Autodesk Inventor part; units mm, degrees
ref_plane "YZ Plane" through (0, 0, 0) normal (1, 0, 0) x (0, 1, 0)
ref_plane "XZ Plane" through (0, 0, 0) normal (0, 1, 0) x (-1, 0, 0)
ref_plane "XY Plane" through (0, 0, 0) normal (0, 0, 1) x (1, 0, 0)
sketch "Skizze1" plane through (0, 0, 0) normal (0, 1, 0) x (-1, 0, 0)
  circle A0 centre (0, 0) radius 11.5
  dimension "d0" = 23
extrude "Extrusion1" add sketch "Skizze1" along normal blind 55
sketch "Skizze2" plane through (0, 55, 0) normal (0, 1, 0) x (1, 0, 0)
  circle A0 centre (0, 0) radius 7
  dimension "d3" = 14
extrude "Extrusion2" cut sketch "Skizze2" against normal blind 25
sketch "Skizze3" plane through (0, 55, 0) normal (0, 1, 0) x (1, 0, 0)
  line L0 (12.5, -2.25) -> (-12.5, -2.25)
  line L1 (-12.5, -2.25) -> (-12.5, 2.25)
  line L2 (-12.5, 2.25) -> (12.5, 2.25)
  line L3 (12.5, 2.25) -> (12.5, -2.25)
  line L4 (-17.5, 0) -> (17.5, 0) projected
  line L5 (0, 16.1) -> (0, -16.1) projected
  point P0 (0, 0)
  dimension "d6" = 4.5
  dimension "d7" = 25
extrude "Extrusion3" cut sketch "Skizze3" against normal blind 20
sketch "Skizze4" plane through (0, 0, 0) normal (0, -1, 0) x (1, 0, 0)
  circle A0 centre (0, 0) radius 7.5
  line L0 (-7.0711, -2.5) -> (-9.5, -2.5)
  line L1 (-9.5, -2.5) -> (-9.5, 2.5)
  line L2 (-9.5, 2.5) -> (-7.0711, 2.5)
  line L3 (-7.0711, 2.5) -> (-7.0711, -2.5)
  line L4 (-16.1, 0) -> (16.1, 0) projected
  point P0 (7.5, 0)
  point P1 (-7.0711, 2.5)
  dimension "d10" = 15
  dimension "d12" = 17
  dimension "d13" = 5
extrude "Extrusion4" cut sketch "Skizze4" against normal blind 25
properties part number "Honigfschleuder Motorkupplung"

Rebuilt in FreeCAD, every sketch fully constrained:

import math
import FreeCAD as App
import Part
import Sketcher
from FreeCAD import Vector

doc = App.newDocument("Part")
params = doc.addObject("Spreadsheet::Sheet", "Params")
for row, (alias, value) in enumerate([
    ("sketch1_diameter", "23 mm"),
    ("pad1_length", "55 mm"),
    ("sketch2_diameter", "14 mm"),
    ("pocket1_length", "25 mm"),
    ("sketch3_width", "25 mm"),
    ("sketch3_height", "4.5 mm"),
    ("pocket2_length", "20 mm"),
    ("sketch4_radius", "7.5 mm"),
    ("sketch4_height", "5 mm"),
    ("pocket3_length", "25 mm"),
], start=1):
    params.set(f"A{row}", alias)
    params.set(f"B{row}", "=" + value)
    params.setAlias(f"B{row}", alias)

body = doc.addObject("PartDesign::Body", "Body")

# Sketch on XZ plane
sketch1 = body.newObject("Sketcher::SketchObject", "Sketch")
sketch1.AttachmentSupport = (doc.getObject("XZ_Plane"), [""])
sketch1.MapMode = "FlatFace"
sketch1.addGeometry(Part.Circle(Vector(0, 0, 0), Vector(0, 0, 1), 12), False)
sketch1.addConstraint([
    Sketcher.Constraint("Coincident", 0, 3, -1, 1),
    Sketcher.Constraint("Diameter", 0, 23.0),
])
sketch1.setExpression("Constraints[1]", "Params.sketch1_diameter")
pad1 = body.newObject("PartDesign::Pad", "Pad")
pad1.Profile = sketch1
pad1.setExpression("Length", "Params.pad1_length")
pad1.Reversed = True

# Sketch on XZ plane
sketch2 = body.newObject("Sketcher::SketchObject", "Sketch001")
sketch2.AttachmentSupport = (doc.getObject("XZ_Plane"), [""])
sketch2.MapMode = "FlatFace"
sketch2.AttachmentOffset = App.Placement(Vector(0, 0, -55), App.Rotation())
sketch2.addGeometry(Part.Circle(Vector(0, 0, 0), Vector(0, 0, 1), 7), False)
sketch2.addConstraint([
    Sketcher.Constraint("Coincident", 0, 3, -1, 1),
    Sketcher.Constraint("Diameter", 0, 14.0),
])
sketch2.setExpression("Constraints[1]", "Params.sketch2_diameter")
pocket1 = body.newObject("PartDesign::Pocket", "Pocket")
pocket1.Profile = sketch2
pocket1.setExpression("Length", "Params.pocket1_length")
pocket1.Reversed = True

# Sketch on XZ plane
sketch3 = body.newObject("Sketcher::SketchObject", "Sketch002")
sketch3.AttachmentSupport = (doc.getObject("XZ_Plane"), [""])
sketch3.MapMode = "FlatFace"
sketch3.AttachmentOffset = App.Placement(Vector(0, 0, -55), App.Rotation())
sketch3.addGeometry([
    Part.LineSegment(Vector(12.5, 2.2, 0), Vector(12.5, -2.2, 0)),
    Part.LineSegment(Vector(12.5, -2.2, 0), Vector(-12.5, -2.2, 0)),
    Part.LineSegment(Vector(-12.5, -2.2, 0), Vector(-12.5, 2.2, 0)),
    Part.LineSegment(Vector(-12.5, 2.2, 0), Vector(12.5, 2.2, 0)),
], False)
sketch3.addConstraint([
    Sketcher.Constraint("Coincident", 0, 2, 1, 1),
    Sketcher.Constraint("Coincident", 1, 2, 2, 1),
    Sketcher.Constraint("Coincident", 2, 2, 3, 1),
    Sketcher.Constraint("Coincident", 3, 2, 0, 1),
    Sketcher.Constraint("Vertical", 0),
    Sketcher.Constraint("Horizontal", 1),
    Sketcher.Constraint("Vertical", 2),
    Sketcher.Constraint("Horizontal", 3),
    Sketcher.Constraint("Symmetric", 0, 2, 2, 2, -1, 1),
    Sketcher.Constraint("DistanceX", 1, 2, 1, 1, 25.0),
    Sketcher.Constraint("DistanceY", 0, 2, 0, 1, 4.5),
])
sketch3.setExpression("Constraints[9]", "Params.sketch3_width")
sketch3.setExpression("Constraints[10]", "Params.sketch3_height")
pocket2 = body.newObject("PartDesign::Pocket", "Pocket001")
pocket2.Profile = sketch3
pocket2.setExpression("Length", "Params.pocket2_length")
pocket2.Reversed = True

# Sketch on XZ plane
sketch4 = body.newObject("Sketcher::SketchObject", "Sketch003")
sketch4.AttachmentSupport = (doc.getObject("XZ_Plane"), [""])
sketch4.MapMode = "FlatFace"
sketch4.addGeometry([
    Part.LineSegment(Vector(-7.1, 2.5, 0), Vector(-9.5, 2.5, 0)),
    Part.LineSegment(Vector(-9.5, 2.5, 0), Vector(-9.5, -2.5, 0)),
    Part.LineSegment(Vector(-9.5, -2.5, 0), Vector(-7.1, -2.5, 0)),
    Part.ArcOfCircle(Part.Circle(Vector(0, 0, 0), Vector(0, 0, 1), 7.5), math.radians(-161), math.radians(161)),
], False)
sketch4.addConstraint([
    Sketcher.Constraint("Coincident", 0, 2, 1, 1),
    Sketcher.Constraint("Coincident", 1, 2, 2, 1),
    Sketcher.Constraint("Coincident", 2, 2, 3, 1),
    Sketcher.Constraint("Coincident", 3, 2, 0, 1),
    Sketcher.Constraint("Horizontal", 0),
    Sketcher.Constraint("Vertical", 1),
    Sketcher.Constraint("Horizontal", 2),
    Sketcher.Constraint("Coincident", 3, 3, -1, 1),
    Sketcher.Constraint("Vertical", 2, 2, 3, 2),
    Sketcher.Constraint("Radius", 3, 7.5),
    Sketcher.Constraint("DistanceY", 1, 2, 1, 1, 5.0),
    Sketcher.Constraint("DistanceX", 0, 2, -1, 1, 9.5),
])
sketch4.setExpression("Constraints[9]", "Params.sketch4_radius")
sketch4.setExpression("Constraints[10]", "Params.sketch4_height")
pocket3 = body.newObject("PartDesign::Pocket", "Pocket002")
pocket3.Profile = sketch4
pocket3.setExpression("Length", "Params.pocket3_length")

doc.recompute()
